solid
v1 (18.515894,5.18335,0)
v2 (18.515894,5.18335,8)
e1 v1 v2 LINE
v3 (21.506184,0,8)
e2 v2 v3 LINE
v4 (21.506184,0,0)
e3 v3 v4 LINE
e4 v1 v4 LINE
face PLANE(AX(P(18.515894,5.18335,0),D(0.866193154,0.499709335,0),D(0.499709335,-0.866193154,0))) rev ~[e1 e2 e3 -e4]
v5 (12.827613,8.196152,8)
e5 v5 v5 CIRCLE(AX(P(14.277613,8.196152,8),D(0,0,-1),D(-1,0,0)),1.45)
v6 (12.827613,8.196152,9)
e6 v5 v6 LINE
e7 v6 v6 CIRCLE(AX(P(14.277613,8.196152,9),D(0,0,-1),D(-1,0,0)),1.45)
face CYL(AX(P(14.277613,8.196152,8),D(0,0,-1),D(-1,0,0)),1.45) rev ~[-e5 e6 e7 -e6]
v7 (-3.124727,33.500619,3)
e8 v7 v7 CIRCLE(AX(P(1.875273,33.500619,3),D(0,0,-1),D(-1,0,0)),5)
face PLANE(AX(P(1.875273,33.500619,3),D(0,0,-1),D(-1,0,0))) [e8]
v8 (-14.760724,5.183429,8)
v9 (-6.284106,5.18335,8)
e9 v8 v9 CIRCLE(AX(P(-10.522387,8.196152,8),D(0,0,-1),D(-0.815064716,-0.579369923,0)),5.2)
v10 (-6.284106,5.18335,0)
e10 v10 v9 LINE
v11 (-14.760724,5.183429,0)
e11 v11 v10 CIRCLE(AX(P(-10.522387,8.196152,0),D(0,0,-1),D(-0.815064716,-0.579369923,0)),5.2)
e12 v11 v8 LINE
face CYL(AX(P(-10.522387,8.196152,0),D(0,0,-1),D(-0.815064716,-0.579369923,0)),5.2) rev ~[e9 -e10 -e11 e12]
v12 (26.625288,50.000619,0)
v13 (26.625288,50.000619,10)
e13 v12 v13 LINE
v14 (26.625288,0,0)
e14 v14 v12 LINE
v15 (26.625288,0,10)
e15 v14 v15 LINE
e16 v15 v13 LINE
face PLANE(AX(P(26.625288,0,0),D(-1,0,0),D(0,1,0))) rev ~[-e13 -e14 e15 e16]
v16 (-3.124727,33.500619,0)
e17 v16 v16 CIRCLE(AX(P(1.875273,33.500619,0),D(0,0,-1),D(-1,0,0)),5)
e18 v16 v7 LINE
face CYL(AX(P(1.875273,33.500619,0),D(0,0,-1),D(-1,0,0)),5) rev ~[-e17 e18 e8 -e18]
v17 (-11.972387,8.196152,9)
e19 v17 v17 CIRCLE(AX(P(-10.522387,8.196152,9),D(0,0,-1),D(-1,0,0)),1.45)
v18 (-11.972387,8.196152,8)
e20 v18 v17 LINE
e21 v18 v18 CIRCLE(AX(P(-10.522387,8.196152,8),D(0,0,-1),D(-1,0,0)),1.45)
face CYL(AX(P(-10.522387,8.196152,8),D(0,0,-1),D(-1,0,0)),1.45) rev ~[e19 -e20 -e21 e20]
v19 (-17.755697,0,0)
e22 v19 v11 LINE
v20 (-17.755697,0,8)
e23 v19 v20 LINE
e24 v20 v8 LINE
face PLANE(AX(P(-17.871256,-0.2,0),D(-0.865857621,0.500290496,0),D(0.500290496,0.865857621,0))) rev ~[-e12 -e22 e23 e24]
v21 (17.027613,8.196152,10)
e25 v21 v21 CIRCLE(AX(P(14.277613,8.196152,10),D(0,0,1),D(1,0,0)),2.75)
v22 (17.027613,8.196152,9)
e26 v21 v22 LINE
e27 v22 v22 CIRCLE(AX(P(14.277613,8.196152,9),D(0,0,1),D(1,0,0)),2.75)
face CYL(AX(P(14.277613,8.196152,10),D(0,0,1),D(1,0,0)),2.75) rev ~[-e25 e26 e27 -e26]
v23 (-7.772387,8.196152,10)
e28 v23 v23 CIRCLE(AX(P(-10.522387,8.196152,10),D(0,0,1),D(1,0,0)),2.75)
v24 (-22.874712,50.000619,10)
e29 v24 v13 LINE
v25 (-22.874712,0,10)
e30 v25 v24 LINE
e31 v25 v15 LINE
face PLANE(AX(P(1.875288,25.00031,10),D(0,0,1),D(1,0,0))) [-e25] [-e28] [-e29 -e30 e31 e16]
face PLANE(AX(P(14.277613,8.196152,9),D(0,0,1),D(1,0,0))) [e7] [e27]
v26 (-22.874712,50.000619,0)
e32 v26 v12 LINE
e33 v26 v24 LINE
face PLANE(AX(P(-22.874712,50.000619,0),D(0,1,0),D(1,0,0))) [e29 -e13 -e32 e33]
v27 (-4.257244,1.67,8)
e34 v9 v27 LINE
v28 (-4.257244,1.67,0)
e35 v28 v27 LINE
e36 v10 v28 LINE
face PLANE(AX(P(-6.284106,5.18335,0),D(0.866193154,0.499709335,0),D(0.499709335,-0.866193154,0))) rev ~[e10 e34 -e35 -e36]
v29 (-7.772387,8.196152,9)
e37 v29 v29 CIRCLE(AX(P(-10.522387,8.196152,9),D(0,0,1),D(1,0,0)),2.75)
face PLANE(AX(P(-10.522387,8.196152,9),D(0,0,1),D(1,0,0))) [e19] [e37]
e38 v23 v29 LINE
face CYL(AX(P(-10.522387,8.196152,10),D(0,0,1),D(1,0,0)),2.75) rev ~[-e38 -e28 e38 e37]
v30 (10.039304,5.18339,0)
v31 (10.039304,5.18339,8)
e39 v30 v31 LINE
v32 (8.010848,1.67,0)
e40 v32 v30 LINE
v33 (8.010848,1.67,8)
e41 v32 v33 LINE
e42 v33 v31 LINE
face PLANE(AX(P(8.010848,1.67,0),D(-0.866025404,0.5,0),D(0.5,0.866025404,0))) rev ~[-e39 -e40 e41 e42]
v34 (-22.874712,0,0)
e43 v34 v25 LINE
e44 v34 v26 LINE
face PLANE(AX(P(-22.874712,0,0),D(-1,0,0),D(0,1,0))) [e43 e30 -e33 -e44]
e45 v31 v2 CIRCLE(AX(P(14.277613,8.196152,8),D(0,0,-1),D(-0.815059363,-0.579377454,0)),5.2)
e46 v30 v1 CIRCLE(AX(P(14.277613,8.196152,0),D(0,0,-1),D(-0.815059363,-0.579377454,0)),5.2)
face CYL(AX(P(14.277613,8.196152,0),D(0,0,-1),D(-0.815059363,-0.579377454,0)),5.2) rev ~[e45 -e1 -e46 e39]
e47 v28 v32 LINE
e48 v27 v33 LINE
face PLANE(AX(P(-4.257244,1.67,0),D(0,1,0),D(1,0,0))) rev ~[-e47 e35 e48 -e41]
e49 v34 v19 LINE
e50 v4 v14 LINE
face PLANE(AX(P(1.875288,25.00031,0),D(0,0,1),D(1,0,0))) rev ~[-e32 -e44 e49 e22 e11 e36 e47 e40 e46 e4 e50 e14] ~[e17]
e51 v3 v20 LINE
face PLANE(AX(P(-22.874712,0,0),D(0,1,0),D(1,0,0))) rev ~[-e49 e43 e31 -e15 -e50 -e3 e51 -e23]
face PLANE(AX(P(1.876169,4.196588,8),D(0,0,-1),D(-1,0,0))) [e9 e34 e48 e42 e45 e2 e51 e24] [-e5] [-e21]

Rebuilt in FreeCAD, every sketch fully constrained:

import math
import FreeCAD as App
import Part
import Sketcher
Q = App.Units.Quantity

doc = App.newDocument("Part")
body = doc.addObject("PartDesign::Body", "Body")

sketch1 = body.newObject("Sketcher::SketchObject", "Sketch")
sketch1.AttachmentSupport = (doc.getObject("XY_Plane"), [""])
sketch1.MapMode = "FlatFace"
sketch1.addGeometry(Part.LineSegment(App.Vector(-22.874712, 50.000619, 0), App.Vector(-22.874712, 0, 0)), False)
sketch1.addGeometry(Part.LineSegment(App.Vector(-22.874712, 0, 0), App.Vector(26.625288, 0, 0)), False)
sketch1.addGeometry(Part.LineSegment(App.Vector(26.625288, 0, 0), App.Vector(26.625288, 50.000619, 0)), False)
sketch1.addGeometry(Part.LineSegment(App.Vector(26.625288, 50.000619, 0), App.Vector(-22.874712, 50.000619, 0)), False)
sketch1.addConstraint(Sketcher.Constraint("Coincident", 0, 2, 1, 1))
sketch1.addConstraint(Sketcher.Constraint("Coincident", 1, 2, 2, 1))
sketch1.addConstraint(Sketcher.Constraint("Coincident", 2, 2, 3, 1))
sketch1.addConstraint(Sketcher.Constraint("Coincident", 3, 2, 0, 1))
sketch1.addConstraint(Sketcher.Constraint("Vertical", 0))
sketch1.addConstraint(Sketcher.Constraint("Horizontal", 1))
sketch1.addConstraint(Sketcher.Constraint("Vertical", 2))
sketch1.addConstraint(Sketcher.Constraint("Horizontal", 3))
sketch1.addConstraint(Sketcher.Constraint("PointOnObject", 0, 2, -1))
sketch1.addConstraint(Sketcher.Constraint("DistanceX", 1, 1, 1, 2, 49.5))
sketch1.addConstraint(Sketcher.Constraint("DistanceY", 0, 2, 0, 1, 50.000619))
sketch1.addConstraint(Sketcher.Constraint("DistanceX", 0, 2, -1, 1, 22.874712))
pad1 = body.newObject("PartDesign::Pad", "Pad")
pad1.Profile = sketch1
pad1.Length = 10

sketch2 = body.newObject("Sketcher::SketchObject", "Sketch001")
sketch2.AttachmentSupport = (doc.getObject("XY_Plane"), [""])
sketch2.MapMode = "FlatFace"
sketch2.addGeometry(Part.LineSegment(App.Vector(-17.871256, -0.2, 0), App.Vector(-14.760724, 5.183429, 0)), False)
sketch2.addGeometry(Part.ArcOfCircle(Part.Circle(App.Vector(-10.522387, 8.196152, 0), App.Vector(0, 0, 1), 5.2), math.radians(-35.407297), math.radians(215.406239)), False)
sketch2.addGeometry(Part.LineSegment(App.Vector(-6.284106, 5.18335, 0), App.Vector(-4.257244, 1.67, 0)), False)
sketch2.addGeometry(Part.LineSegment(App.Vector(-4.257244, 1.67, 0), App.Vector(8.010848, 1.67, 0)), False)
sketch2.addGeometry(Part.LineSegment(App.Vector(8.010848, 1.67, 0), App.Vector(10.039304, 5.18339, 0)), False)
sketch2.addGeometry(Part.ArcOfCircle(Part.Circle(App.Vector(14.277613, 8.196152, 0), App.Vector(0, 0, 1), 5.2), math.radians(-35.407297), math.radians(215.406768)), False)
sketch2.addGeometry(Part.LineSegment(App.Vector(18.515894, 5.18335, 0), App.Vector(21.621564, -0.2, 0)), False)
sketch2.addGeometry(Part.LineSegment(App.Vector(21.621564, -0.2, 0), App.Vector(-17.871256, -0.2, 0)), False)
sketch2.addConstraint(Sketcher.Constraint("Coincident", 0, 2, 1, 2))
sketch2.addConstraint(Sketcher.Constraint("Coincident", 1, 1, 2, 1))
sketch2.addConstraint(Sketcher.Constraint("Coincident", 2, 2, 3, 1))
sketch2.addConstraint(Sketcher.Constraint("Coincident", 3, 2, 4, 1))
sketch2.addConstraint(Sketcher.Constraint("Coincident", 4, 2, 5, 2))
sketch2.addConstraint(Sketcher.Constraint("Coincident", 5, 1, 6, 1))
sketch2.addConstraint(Sketcher.Constraint("Coincident", 6, 2, 7, 1))
sketch2.addConstraint(Sketcher.Constraint("Coincident", 7, 2, 0, 1))
sketch2.addConstraint(Sketcher.Constraint("Horizontal", 3))
sketch2.addConstraint(Sketcher.Constraint("Horizontal", 7))
sketch2.addConstraint(Sketcher.Constraint("Equal", 1, 5))
sketch2.addConstraint(Sketcher.Constraint("Parallel", 2, 6))
sketch2.addConstraint(Sketcher.Constraint("Horizontal", 1, 3, 5, 3))
sketch2.addConstraint(Sketcher.Constraint("Horizontal", 1, 1, 5, 1))
sketch2.addConstraint(Sketcher.Constraint("Radius", 1, 5.2))
sketch2.addConstraint(Sketcher.Constraint("Angle", 4, Q("60 deg")))
sketch2.addConstraint(Sketcher.Constraint("DistanceY", 6, 2, -1, 1, 0.2))
sketch2.addConstraint(Sketcher.Constraint("DistanceX", 1, 3, 5, 3, 24.8))
sketch2.addConstraint(Sketcher.Constraint("DistanceY", -1, 1, 2, 2, 1.67))
sketch2.addConstraint(Sketcher.Constraint("DistanceX", 3, 1, 3, 2, 12.268092))
sketch2.addConstraint(Sketcher.Constraint("DistanceX", 7, 2, 7, 1, 39.49282))
sketch2.addConstraint(Sketcher.Constraint("DistanceY", 1, 1, 1, 3, 3.012802))
sketch2.addConstraint(Sketcher.Constraint("DistanceY", -1, 1, 0, 2, 5.183429))
sketch2.addConstraint(Sketcher.Constraint("DistanceY", -1, 1, 1, 1, 5.18335))
sketch2.addConstraint(Sketcher.Constraint("DistanceY", -1, 1, 4, 2, 5.18339))
sketch2.addConstraint(Sketcher.Constraint("DistanceX", 1, 3, -1, 1, 10.522387))
pocket1 = body.newObject("PartDesign::Pocket", "Pocket")
pocket1.Profile = sketch2
pocket1.Length = 8
pocket1.Reversed = True

sketch3 = body.newObject("Sketcher::SketchObject", "Sketch002")
sketch3.AttachmentSupport = (doc.getObject("XY_Plane"), [""])
sketch3.MapMode = "FlatFace"
sketch3.AttachmentOffset = App.Placement(App.Vector(0, 0, 8), App.Rotation())
sketch3.addGeometry(Part.Circle(App.Vector(14.277613, 8.196152, 0), App.Vector(0, 0, 1), 1.45), False)
sketch3.addGeometry(Part.Circle(App.Vector(-10.522387, 8.196152, 0), App.Vector(0, 0, 1), 1.45), False)
sketch3.addConstraint(Sketcher.Constraint("Equal", 0, 1))
sketch3.addConstraint(Sketcher.Constraint("Horizontal", 0, 3, 1, 3))
sketch3.addConstraint(Sketcher.Constraint("Diameter", 0, 2.9))
sketch3.addConstraint(Sketcher.Constraint("DistanceX", 1, 3, 0, 3, 24.8))
sketch3.addConstraint(Sketcher.Constraint("DistanceX", -1, 1, 0, 3, 14.277613))
sketch3.addConstraint(Sketcher.Constraint("DistanceY", -1, 1, 0, 3, 8.196152))
pocket2 = body.newObject("PartDesign::Pocket", "Pocket001")
pocket2.Profile = sketch3
pocket2.Length = 8
pocket2.Reversed = True

sketch4 = body.newObject("Sketcher::SketchObject", "Sketch003")
sketch4.AttachmentSupport = (doc.getObject("XY_Plane"), [""])
sketch4.MapMode = "FlatFace"
sketch4.AttachmentOffset = App.Placement(App.Vector(0, 0, 10), App.Rotation())
sketch4.addGeometry(Part.Circle(App.Vector(-10.522387, 8.196152, 0), App.Vector(0, 0, 1), 2.75), False)
sketch4.addGeometry(Part.Circle(App.Vector(14.277613, 8.196152, 0), App.Vector(0, 0, 1), 2.75), False)
sketch4.addConstraint(Sketcher.Constraint("Equal", 0, 1))
sketch4.addConstraint(Sketcher.Constraint("Horizontal", 0, 3, 1, 3))
sketch4.addConstraint(Sketcher.Constraint("Diameter", 0, 5.5))
sketch4.addConstraint(Sketcher.Constraint("DistanceX", 0, 3, 1, 3, 24.8))
sketch4.addConstraint(Sketcher.Constraint("DistanceX", 0, 3, -1, 1, 10.522387))
sketch4.addConstraint(Sketcher.Constraint("DistanceY", -1, 1, 0, 3, 8.196152))
pocket3 = body.newObject("PartDesign::Pocket", "Pocket002")
pocket3.Profile = sketch4
pocket3.Length = 1

sketch5 = body.newObject("Sketcher::SketchObject", "Sketch004")
sketch5.AttachmentSupport = (doc.getObject("XY_Plane"), [""])
sketch5.MapMode = "FlatFace"
sketch5.addGeometry(Part.Circle(App.Vector(1.875273, 33.500619, 0), App.Vector(0, 0, 1), 5), False)
sketch5.addConstraint(Sketcher.Constraint("Diameter", 0, 10.0))
sketch5.addConstraint(Sketcher.Constraint("DistanceY", -1, 1, 0, 3, 33.500619))
sketch5.addConstraint(Sketcher.Constraint("DistanceX", -1, 1, 0, 3, 1.875273))
pocket4 = body.newObject("PartDesign::Pocket", "Pocket003")
pocket4.Profile = sketch5
pocket4.Length = 3
pocket4.Reversed = True

doc.recompute()
